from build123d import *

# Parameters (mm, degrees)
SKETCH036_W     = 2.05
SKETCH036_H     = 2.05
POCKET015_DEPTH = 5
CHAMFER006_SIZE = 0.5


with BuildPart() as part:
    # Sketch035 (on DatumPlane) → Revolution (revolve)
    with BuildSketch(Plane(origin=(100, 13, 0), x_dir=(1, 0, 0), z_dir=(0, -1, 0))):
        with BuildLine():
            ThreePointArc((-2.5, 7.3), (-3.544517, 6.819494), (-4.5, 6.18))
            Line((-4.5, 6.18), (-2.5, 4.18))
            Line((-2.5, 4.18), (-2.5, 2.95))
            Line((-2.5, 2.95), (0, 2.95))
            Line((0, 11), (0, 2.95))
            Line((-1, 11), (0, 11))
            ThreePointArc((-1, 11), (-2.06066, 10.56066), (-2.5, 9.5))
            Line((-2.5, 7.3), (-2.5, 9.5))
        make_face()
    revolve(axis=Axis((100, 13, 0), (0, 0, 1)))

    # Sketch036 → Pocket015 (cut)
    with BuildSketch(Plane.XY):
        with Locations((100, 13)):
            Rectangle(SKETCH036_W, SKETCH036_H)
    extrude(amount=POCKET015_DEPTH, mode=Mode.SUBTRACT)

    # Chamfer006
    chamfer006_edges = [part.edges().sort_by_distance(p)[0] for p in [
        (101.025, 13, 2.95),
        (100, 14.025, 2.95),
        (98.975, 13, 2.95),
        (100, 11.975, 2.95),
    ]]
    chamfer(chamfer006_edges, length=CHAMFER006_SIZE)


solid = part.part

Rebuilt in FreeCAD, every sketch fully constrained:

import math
import FreeCAD as App
import Part
import Sketcher
Q = App.Units.Quantity


def edges_at(feature, points):
    """Names of the edges that pass closest to the given points."""
    edges = feature.Shape.Edges
    near = lambda p: min(range(len(edges)), key=lambda i: edges[i].distToShape(Part.Vertex(*p))[0])
    return sorted({f"Edge{near(p) + 1}" for p in points})

doc = App.newDocument("Part")
body = doc.addObject("PartDesign::Body", "Body")

# Sketch on XZ plane
sketch1 = body.newObject("Sketcher::SketchObject", "Sketch")
sketch1.AttachmentSupport = (doc.getObject("XZ_Plane"), [""])
sketch1.MapMode = "FlatFace"
sketch1.AttachmentOffset = App.Placement(App.Vector(0, 0, -13), App.Rotation())
sketch1.addGeometry([
    Part.ArcOfCircle(Part.Circle(App.Vector(100.000013, 0.489976, 0), App.Vector(0, 0, 1), 7.254412), math.radians(110.158583), math.radians(128.339069)),  # 0
    Part.LineSegment(App.Vector(95.5, 6.18, 0), App.Vector(97.5, 4.18, 0)),  # 1
    Part.LineSegment(App.Vector(97.5, 4.18, 0), App.Vector(97.5, 2.95, 0)),  # 2
    Part.LineSegment(App.Vector(97.5, 2.95, 0), App.Vector(100, 2.95, 0)),  # 3
    Part.LineSegment(App.Vector(100, 2.95, 0), App.Vector(100, 11, 0)),  # 4
    Part.LineSegment(App.Vector(100, 11, 0), App.Vector(99, 11, 0)),  # 5
    Part.ArcOfCircle(Part.Circle(App.Vector(99.000001, 9.499999, 0), App.Vector(0, 0, 1), 1.500001), math.radians(90.000022), math.radians(179.999978)),  # 6
    Part.LineSegment(App.Vector(97.5, 9.5, 0), App.Vector(97.5, 7.3, 0)),  # 7
], False)
sketch1.addGeometry(Part.LineSegment(App.Vector(100, 0.489976, 0), App.Vector(100, 11, 0)), True)  # axis
sketch1.addConstraint([
    Sketcher.Constraint("Coincident", 0, 2, 1, 1),
    Sketcher.Constraint("Coincident", 1, 2, 2, 1),
    Sketcher.Constraint("Coincident", 2, 2, 3, 1),
    Sketcher.Constraint("Coincident", 3, 2, 4, 1),
    Sketcher.Constraint("Coincident", 4, 2, 5, 1),
    Sketcher.Constraint("Tangent", 5, 2, 6, 1),
    Sketcher.Constraint("Tangent", 6, 2, 7, 1),
    Sketcher.Constraint("Coincident", 7, 2, 0, 1),
    Sketcher.Constraint("Vertical", 2),
    Sketcher.Constraint("Horizontal", 3),
    Sketcher.Constraint("Vertical", 4),
    Sketcher.Constraint("Horizontal", 5),
    Sketcher.Constraint("Vertical", 7),
    Sketcher.Constraint("Vertical", 8),
    Sketcher.Constraint("Coincident", 8, 2, 4, 2),
    Sketcher.Constraint("Horizontal", 0, 3, 8, 1),
    Sketcher.Constraint("Vertical", 2, 2, 6, 2),
    Sketcher.Constraint("Radius", 6, Q("1.500001 mm")),
    Sketcher.Constraint("DistanceX", 5, 2, 5, 1, Q("1 mm")),
    Sketcher.Constraint("Angle", 1, Q("-45 deg")),
    Sketcher.Constraint("DistanceY", 7, 2, 7, 1, Q("2.2 mm")),
    Sketcher.Constraint("DistanceX", -1, 1, 6, 3, Q("99.000001 mm")),
    Sketcher.Constraint("DistanceY", -1, 1, 4, 2, Q("11 mm")),
    Sketcher.Constraint("DistanceX", 0, 2, 1, 2, Q("2 mm")),
    Sketcher.Constraint("DistanceY", 2, 2, 2, 1, Q("1.23 mm")),
    Sketcher.Constraint("DistanceY", 4, 1, 4, 2, Q("8.05 mm")),
    Sketcher.Constraint("Radius", 0, Q("7.254412 mm")),
])
revolution = body.newObject("PartDesign::Revolution", "Revolution")
revolution.Profile = sketch1
revolution.ReferenceAxis = (sketch1, ["Axis0"])
revolution.Angle = 360

# Sketch on XY plane
sketch2 = body.newObject("Sketcher::SketchObject", "Sketch001")
sketch2.AttachmentSupport = (doc.getObject("XY_Plane"), [""])
sketch2.MapMode = "FlatFace"
sketch2.addGeometry([
    Part.LineSegment(App.Vector(98.975, 14.025, 0), App.Vector(98.975, 11.975, 0)),
    Part.LineSegment(App.Vector(98.975, 11.975, 0), App.Vector(101.025, 11.975, 0)),
    Part.LineSegment(App.Vector(101.025, 11.975, 0), App.Vector(101.025, 14.025, 0)),
    Part.LineSegment(App.Vector(101.025, 14.025, 0), App.Vector(98.975, 14.025, 0)),
], False)
sketch2.addConstraint([
    Sketcher.Constraint("Coincident", 0, 2, 1, 1),
    Sketcher.Constraint("Coincident", 1, 2, 2, 1),
    Sketcher.Constraint("Coincident", 2, 2, 3, 1),
    Sketcher.Constraint("Coincident", 3, 2, 0, 1),
    Sketcher.Constraint("Vertical", 0),
    Sketcher.Constraint("Horizontal", 1),
    Sketcher.Constraint("Vertical", 2),
    Sketcher.Constraint("Horizontal", 3),
    Sketcher.Constraint("Equal", 3, 0),
    Sketcher.Constraint("DistanceX", 1, 1, 1, 2, Q("2.05 mm")),
    Sketcher.Constraint("DistanceX", -1, 1, 0, 2, Q("98.975 mm")),
    Sketcher.Constraint("DistanceY", -1, 1, 0, 2, Q("11.975 mm")),
])
pocket1 = body.newObject("PartDesign::Pocket", "Pocket")
pocket1.Profile = sketch2
pocket1.Length = 5
pocket1.Reversed = True
doc.recompute()

chamfer = body.newObject("PartDesign::Chamfer", "Chamfer")
chamfer.Base = (pocket1, edges_at(pocket1, [
    (101.025, 13, 2.95),
    (100, 14.025, 2.95),
    (98.975, 13, 2.95),
    (100, 11.975, 2.95),
]))
chamfer.Size = 0.5

doc.recompute()
